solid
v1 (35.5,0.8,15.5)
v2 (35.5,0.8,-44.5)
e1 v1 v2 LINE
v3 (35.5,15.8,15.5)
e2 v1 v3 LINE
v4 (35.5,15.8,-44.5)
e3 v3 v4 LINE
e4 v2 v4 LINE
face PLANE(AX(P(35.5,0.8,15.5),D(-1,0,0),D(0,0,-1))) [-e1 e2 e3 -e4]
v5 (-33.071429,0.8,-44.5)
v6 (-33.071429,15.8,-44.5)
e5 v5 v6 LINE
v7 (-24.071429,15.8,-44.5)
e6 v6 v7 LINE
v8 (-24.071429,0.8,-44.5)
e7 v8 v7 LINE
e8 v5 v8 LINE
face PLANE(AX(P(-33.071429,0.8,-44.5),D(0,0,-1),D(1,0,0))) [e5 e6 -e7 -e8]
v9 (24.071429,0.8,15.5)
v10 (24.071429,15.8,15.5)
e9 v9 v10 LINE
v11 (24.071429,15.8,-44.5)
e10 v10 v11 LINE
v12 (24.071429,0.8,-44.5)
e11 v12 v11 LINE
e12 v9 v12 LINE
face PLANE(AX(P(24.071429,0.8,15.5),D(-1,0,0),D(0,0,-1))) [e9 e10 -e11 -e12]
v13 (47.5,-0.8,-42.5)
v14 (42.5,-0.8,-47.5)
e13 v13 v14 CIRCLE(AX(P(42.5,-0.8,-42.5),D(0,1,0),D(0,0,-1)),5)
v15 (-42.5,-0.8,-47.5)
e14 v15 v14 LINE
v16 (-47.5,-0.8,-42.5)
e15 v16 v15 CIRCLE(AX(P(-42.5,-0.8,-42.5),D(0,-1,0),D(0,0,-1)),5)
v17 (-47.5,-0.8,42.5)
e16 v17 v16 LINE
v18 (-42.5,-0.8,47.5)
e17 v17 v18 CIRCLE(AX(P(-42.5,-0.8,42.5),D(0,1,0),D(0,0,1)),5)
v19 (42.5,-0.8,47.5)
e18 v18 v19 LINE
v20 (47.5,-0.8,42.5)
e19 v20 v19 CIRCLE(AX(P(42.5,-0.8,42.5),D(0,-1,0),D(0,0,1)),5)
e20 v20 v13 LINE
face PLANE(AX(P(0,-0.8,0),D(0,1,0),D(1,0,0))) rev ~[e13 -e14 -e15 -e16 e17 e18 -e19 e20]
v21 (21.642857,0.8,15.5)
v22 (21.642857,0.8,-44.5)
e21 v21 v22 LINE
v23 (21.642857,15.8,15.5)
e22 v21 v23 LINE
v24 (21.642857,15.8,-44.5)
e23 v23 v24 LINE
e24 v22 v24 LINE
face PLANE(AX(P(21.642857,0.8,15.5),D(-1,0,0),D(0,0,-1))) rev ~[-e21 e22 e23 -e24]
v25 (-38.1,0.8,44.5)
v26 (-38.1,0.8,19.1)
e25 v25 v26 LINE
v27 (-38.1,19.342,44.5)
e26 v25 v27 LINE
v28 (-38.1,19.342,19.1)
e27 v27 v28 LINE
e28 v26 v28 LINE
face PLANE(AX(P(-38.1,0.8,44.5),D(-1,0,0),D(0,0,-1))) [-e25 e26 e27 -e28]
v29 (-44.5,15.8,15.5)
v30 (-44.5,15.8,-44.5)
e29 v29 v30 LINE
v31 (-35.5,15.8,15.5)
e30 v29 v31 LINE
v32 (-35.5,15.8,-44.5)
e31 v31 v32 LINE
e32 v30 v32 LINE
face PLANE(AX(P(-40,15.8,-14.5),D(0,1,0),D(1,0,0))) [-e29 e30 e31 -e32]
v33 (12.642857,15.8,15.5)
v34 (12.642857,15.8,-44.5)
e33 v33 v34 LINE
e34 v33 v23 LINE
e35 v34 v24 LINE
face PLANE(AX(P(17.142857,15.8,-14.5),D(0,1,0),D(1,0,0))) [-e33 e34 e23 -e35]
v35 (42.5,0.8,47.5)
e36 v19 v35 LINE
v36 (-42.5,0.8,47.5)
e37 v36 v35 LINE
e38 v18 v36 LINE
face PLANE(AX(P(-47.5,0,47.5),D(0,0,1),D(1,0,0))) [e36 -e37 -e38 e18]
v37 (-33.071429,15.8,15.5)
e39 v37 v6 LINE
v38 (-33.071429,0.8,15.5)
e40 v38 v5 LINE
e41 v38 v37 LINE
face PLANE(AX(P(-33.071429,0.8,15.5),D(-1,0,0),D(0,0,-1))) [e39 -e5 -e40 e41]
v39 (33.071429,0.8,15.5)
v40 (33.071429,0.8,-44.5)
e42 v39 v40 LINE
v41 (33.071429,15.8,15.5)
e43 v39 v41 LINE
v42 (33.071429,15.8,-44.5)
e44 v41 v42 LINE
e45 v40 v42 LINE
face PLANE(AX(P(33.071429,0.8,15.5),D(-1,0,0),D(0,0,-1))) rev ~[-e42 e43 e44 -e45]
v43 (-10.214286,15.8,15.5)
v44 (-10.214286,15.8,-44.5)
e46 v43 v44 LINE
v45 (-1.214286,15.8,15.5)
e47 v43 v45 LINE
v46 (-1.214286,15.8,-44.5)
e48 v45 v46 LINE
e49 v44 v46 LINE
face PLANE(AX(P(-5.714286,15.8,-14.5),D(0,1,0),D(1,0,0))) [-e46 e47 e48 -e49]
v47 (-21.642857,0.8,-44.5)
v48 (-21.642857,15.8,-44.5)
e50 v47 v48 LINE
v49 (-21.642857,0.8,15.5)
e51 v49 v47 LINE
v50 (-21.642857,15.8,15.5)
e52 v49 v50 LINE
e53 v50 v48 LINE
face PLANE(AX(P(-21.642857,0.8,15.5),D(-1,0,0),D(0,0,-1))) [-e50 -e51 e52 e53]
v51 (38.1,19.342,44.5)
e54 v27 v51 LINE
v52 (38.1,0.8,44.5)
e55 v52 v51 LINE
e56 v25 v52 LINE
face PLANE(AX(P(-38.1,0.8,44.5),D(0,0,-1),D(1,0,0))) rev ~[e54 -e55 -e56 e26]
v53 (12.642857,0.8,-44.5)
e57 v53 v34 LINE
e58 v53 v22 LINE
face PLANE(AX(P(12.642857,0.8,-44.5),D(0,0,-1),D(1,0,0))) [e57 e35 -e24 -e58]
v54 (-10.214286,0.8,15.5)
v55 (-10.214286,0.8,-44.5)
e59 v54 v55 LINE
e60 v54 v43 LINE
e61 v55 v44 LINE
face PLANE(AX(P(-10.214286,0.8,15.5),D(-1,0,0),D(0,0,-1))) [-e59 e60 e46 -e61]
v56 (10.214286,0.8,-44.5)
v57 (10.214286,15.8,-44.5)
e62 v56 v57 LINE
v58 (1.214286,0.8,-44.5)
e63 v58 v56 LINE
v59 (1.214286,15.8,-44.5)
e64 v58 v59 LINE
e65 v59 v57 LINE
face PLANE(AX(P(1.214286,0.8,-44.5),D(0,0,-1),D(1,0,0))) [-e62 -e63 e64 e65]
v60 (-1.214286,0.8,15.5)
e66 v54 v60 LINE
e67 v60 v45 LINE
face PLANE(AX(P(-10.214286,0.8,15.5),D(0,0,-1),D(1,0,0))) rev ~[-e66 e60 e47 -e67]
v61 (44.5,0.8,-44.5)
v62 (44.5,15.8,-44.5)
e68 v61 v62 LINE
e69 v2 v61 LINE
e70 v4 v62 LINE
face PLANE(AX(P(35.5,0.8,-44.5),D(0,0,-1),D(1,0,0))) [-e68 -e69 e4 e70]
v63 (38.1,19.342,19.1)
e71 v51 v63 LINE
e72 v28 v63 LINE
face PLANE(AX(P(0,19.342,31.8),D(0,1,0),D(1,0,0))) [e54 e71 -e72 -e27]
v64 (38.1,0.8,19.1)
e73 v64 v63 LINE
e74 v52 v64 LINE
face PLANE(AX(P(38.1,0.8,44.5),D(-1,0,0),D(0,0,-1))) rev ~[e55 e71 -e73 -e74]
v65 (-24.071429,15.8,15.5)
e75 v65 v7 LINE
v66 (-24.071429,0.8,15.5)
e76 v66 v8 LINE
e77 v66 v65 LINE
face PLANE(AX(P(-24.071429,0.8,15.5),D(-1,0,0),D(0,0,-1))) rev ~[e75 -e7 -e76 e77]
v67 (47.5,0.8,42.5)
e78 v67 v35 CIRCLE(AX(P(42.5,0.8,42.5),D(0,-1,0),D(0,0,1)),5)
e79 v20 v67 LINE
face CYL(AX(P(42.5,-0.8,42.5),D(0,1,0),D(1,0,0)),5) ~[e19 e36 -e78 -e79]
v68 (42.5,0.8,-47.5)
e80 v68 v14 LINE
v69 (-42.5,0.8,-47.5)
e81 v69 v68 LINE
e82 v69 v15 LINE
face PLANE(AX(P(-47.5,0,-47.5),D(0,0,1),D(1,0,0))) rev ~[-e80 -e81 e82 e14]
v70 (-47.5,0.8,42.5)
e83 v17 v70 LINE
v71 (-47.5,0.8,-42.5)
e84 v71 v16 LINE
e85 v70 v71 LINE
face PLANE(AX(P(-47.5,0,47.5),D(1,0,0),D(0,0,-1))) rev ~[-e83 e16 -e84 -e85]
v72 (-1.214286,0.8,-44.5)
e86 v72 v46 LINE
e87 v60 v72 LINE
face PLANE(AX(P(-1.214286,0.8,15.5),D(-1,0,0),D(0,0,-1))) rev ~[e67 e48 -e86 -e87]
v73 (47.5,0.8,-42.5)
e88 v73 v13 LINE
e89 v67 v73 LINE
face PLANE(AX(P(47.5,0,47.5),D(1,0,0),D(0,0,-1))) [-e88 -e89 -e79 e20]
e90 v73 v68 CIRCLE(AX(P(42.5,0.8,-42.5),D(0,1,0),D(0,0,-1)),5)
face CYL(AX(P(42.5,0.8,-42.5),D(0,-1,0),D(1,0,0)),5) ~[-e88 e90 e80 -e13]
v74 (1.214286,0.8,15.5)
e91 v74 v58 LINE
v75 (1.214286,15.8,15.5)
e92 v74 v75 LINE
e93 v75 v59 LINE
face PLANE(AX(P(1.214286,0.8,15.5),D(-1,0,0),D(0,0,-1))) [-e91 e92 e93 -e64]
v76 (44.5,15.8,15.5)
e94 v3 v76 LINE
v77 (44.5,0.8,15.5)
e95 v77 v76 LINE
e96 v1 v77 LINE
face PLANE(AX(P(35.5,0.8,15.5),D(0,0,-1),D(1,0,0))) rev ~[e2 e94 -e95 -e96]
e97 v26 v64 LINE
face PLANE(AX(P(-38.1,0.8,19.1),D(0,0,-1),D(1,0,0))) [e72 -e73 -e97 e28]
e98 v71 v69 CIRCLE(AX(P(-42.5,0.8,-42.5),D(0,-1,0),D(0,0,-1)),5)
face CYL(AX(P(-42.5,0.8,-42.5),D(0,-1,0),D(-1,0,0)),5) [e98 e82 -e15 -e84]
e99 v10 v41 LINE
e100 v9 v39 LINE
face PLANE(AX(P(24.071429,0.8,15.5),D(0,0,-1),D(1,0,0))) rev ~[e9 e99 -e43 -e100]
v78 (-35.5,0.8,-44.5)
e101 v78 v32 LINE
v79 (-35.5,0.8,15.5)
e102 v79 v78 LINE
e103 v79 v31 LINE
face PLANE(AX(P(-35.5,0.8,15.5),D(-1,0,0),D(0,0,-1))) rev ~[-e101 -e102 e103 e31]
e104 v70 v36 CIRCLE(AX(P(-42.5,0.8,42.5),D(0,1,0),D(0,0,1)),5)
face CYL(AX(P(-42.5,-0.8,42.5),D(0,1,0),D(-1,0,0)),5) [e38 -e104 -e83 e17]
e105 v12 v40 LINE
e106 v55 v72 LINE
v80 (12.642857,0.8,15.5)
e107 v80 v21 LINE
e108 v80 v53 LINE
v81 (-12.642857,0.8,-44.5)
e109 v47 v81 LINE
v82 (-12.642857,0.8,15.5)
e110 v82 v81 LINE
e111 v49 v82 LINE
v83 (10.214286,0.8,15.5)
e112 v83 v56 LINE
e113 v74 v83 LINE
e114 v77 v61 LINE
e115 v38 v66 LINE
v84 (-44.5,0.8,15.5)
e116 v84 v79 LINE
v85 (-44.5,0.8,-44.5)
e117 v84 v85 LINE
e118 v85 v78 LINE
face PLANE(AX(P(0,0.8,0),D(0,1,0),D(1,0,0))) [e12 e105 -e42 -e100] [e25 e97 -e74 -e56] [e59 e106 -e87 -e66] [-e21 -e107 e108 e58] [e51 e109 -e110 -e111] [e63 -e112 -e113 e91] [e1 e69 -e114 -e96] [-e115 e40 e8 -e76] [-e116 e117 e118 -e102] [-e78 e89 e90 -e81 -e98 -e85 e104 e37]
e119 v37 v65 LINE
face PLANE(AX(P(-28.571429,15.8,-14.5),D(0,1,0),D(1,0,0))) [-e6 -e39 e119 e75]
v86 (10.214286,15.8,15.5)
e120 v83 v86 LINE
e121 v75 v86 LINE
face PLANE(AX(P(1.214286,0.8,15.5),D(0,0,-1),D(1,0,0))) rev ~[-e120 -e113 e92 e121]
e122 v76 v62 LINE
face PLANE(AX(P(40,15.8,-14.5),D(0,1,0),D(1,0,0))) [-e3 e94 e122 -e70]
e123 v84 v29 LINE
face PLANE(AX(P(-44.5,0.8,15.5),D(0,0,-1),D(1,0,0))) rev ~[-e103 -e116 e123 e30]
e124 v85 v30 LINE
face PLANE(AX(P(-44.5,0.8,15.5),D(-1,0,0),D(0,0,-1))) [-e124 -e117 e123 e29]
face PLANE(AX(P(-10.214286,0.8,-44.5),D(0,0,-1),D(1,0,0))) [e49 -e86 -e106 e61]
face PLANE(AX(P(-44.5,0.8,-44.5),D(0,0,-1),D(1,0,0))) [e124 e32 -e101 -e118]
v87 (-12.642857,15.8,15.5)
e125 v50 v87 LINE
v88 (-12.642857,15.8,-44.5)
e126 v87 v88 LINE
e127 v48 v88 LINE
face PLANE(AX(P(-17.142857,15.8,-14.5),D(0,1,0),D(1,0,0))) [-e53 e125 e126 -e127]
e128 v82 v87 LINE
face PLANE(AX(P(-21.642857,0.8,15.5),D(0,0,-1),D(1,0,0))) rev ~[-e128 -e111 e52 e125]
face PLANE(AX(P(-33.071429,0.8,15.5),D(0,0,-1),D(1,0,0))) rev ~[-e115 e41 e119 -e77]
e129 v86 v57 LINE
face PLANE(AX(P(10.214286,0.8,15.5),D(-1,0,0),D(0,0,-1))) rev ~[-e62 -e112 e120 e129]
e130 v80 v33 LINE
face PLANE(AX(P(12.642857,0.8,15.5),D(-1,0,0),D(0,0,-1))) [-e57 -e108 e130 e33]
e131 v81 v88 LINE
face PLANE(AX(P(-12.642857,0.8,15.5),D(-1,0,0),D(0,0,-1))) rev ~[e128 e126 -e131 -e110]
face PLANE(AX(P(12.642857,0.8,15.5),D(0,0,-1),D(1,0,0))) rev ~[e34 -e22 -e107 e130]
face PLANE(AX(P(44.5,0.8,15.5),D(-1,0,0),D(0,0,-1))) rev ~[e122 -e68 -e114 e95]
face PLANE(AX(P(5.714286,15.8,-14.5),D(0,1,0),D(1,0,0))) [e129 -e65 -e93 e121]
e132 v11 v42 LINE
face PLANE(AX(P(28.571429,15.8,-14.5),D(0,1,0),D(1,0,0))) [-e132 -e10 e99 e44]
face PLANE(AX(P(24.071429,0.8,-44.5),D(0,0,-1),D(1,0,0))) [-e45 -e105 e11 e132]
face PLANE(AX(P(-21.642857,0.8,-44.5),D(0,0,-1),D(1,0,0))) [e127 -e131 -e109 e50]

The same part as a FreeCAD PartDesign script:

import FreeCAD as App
import Part
import Sketcher
from FreeCAD import Vector
Q = App.Units.Quantity


def edges_at(feature, points):
    """Names of the edges that pass closest to the given points."""
    edges = feature.Shape.Edges
    near = lambda p: min(range(len(edges)), key=lambda i: edges[i].distToShape(Part.Vertex(*p))[0])
    return sorted({f"Edge{near(p) + 1}" for p in points})

doc = App.newDocument("Part")
params = doc.addObject("Spreadsheet::Sheet", "Params")
for row, (alias, value) in enumerate([
    ("sketch1_width", "95 mm"),
    ("pad1_length", "1.6 mm"),
    ("fillet_radius", "5 mm"),
    ("sketch2_width", "76.2 mm"),
    ("sketch2_height", "25.4 mm"),
    ("pad2_length", "18.542 mm"),
    ("sketch3_width", "9 mm"),
    ("sketch3_height", "60 mm"),
    ("pad3_length", "15 mm"),
], start=1):
    params.set(f"A{row}", alias)
    params.set(f"B{row}", "=" + value)
    params.setAlias(f"B{row}", alias)

body = doc.addObject("PartDesign::Body", "Body")

# Sketch on XZ plane
sketch1 = doc.addObject("Sketcher::SketchObject", "Sketch")
body.addObject(sketch1)
sketch1.AttachmentSupport = (doc.XZ_Plane, [""])
sketch1.MapMode = "FlatFace"
sketch1.addGeometry(Part.LineSegment(Vector(-48, -48, 0), Vector(-48, 48, 0)), False)
sketch1.addGeometry(Part.LineSegment(Vector(-48, 48, 0), Vector(48, 48, 0)), False)
sketch1.addGeometry(Part.LineSegment(Vector(48, 48, 0), Vector(48, -48, 0)), False)
sketch1.addGeometry(Part.LineSegment(Vector(48, -48, 0), Vector(-48, -48, 0)), False)
sketch1.addConstraint(Sketcher.Constraint("Coincident", 0, 2, 1, 1))
sketch1.addConstraint(Sketcher.Constraint("Coincident", 1, 2, 2, 1))
sketch1.addConstraint(Sketcher.Constraint("Coincident", 2, 2, 3, 1))
sketch1.addConstraint(Sketcher.Constraint("Coincident", 3, 2, 0, 1))
sketch1.addConstraint(Sketcher.Constraint("Vertical", 0))
sketch1.addConstraint(Sketcher.Constraint("Horizontal", 1))
sketch1.addConstraint(Sketcher.Constraint("Vertical", 2))
sketch1.addConstraint(Sketcher.Constraint("Horizontal", 3))
sketch1.addConstraint(Sketcher.Constraint("Symmetric", 0, 2, 2, 2, -1, 1))
sketch1.addConstraint(Sketcher.Constraint("Equal", 3, 0))
sketch1.addConstraint(Sketcher.Constraint("DistanceX", 1, 1, 1, 2, Q("95 mm")))
sketch1.setExpression("Constraints[10]", "Params.sketch1_width")
pad1 = doc.addObject("PartDesign::Pad", "Pad")
body.addObject(pad1)
pad1.Profile = sketch1
pad1.setExpression("Length", "Params.pad1_length")
pad1.Midplane = True
doc.recompute()

fillet = doc.addObject("PartDesign::Fillet", "Fillet")
body.addObject(fillet)
fillet.Base = (pad1, edges_at(pad1, [
    (47.5, 0, 47.5),
    (-47.5, 0, 47.5),
    (-47.5, 0, -47.5),
    (47.5, 0, -47.5),
]))
fillet.setExpression("Radius", "Params.fillet_radius")

# Sketch on XZ plane
sketch2 = doc.addObject("Sketcher::SketchObject", "Sketch001")
body.addObject(sketch2)
sketch2.AttachmentSupport = (doc.XZ_Plane, [""])
sketch2.MapMode = "FlatFace"
sketch2.AttachmentOffset = App.Placement(Vector(0, 0, -0.8), App.Rotation())
sketch2.addGeometry(Part.LineSegment(Vector(-38, 19, 0), Vector(-38, 44, 0)), False)
sketch2.addGeometry(Part.LineSegment(Vector(-38, 44, 0), Vector(38, 44, 0)), False)
sketch2.addGeometry(Part.LineSegment(Vector(38, 44, 0), Vector(38, 19, 0)), False)
sketch2.addGeometry(Part.LineSegment(Vector(38, 19, 0), Vector(-38, 19, 0)), False)
sketch2.addConstraint(Sketcher.Constraint("Coincident", 0, 2, 1, 1))
sketch2.addConstraint(Sketcher.Constraint("Coincident", 1, 2, 2, 1))
sketch2.addConstraint(Sketcher.Constraint("Coincident", 2, 2, 3, 1))
sketch2.addConstraint(Sketcher.Constraint("Coincident", 3, 2, 0, 1))
sketch2.addConstraint(Sketcher.Constraint("Vertical", 0))
sketch2.addConstraint(Sketcher.Constraint("Horizontal", 1))
sketch2.addConstraint(Sketcher.Constraint("Vertical", 2))
sketch2.addConstraint(Sketcher.Constraint("Horizontal", 3))
sketch2.addConstraint(Sketcher.Constraint("DistanceX", 1, 1, 1, 2, Q("76.2 mm")))
sketch2.addConstraint(Sketcher.Constraint("DistanceY", 0, 1, 0, 2, Q("25.4 mm")))
sketch2.addConstraint(Sketcher.Constraint("DistanceX", 0, 2, -1, 1, Q("38.1 mm")))
sketch2.addConstraint(Sketcher.Constraint("DistanceY", -1, 1, 0, 2, Q("44.5 mm")))
sketch2.setExpression("Constraints[8]", "Params.sketch2_width")
sketch2.setExpression("Constraints[9]", "Params.sketch2_height")
pad2 = doc.addObject("PartDesign::Pad", "Pad001")
body.addObject(pad2)
pad2.Profile = sketch2
pad2.setExpression("Length", "Params.pad2_length")
pad2.Reversed = True

# Sketch on XZ plane
sketch3 = doc.addObject("Sketcher::SketchObject", "Sketch002")
body.addObject(sketch3)
sketch3.AttachmentSupport = (doc.XZ_Plane, [""])
sketch3.MapMode = "FlatFace"
sketch3.AttachmentOffset = App.Placement(Vector(0, 0, -0.8), App.Rotation())
sketch3.addGeometry(Part.LineSegment(Vector(-44, -44, 0), Vector(-44, 16, 0)), False)
sketch3.addGeometry(Part.LineSegment(Vector(-44, 16, 0), Vector(-36, 16, 0)), False)
sketch3.addGeometry(Part.LineSegment(Vector(-36, 16, 0), Vector(-36, -44, 0)), False)
sketch3.addGeometry(Part.LineSegment(Vector(-36, -44, 0), Vector(-44, -44, 0)), False)
sketch3.addGeometry(Part.LineSegment(Vector(-33, -44, 0), Vector(-33, 16, 0)), False)
sketch3.addGeometry(Part.LineSegment(Vector(-33, 16, 0), Vector(-24, 16, 0)), False)
sketch3.addGeometry(Part.LineSegment(Vector(-24, 16, 0), Vector(-24, -44, 0)), False)
sketch3.addGeometry(Part.LineSegment(Vector(-24, -44, 0), Vector(-33, -44, 0)), False)
sketch3.addGeometry(Part.LineSegment(Vector(-22, -44, 0), Vector(-22, 16, 0)), False)
sketch3.addGeometry(Part.LineSegment(Vector(-22, 16, 0), Vector(-13, 16, 0)), False)
sketch3.addGeometry(Part.LineSegment(Vector(-13, 16, 0), Vector(-13, -44, 0)), False)
sketch3.addGeometry(Part.LineSegment(Vector(-13, -44, 0), Vector(-22, -44, 0)), False)
sketch3.addGeometry(Part.LineSegment(Vector(-10, -44, 0), Vector(-10, 16, 0)), False)
sketch3.addGeometry(Part.LineSegment(Vector(-10, 16, 0), Vector(-1, 16, 0)), False)
sketch3.addGeometry(Part.LineSegment(Vector(-1, 16, 0), Vector(-1, -44, 0)), False)
sketch3.addGeometry(Part.LineSegment(Vector(-1, -44, 0), Vector(-10, -44, 0)), False)
sketch3.addGeometry(Part.LineSegment(Vector(1, -44, 0), Vector(1, 16, 0)), False)
sketch3.addGeometry(Part.LineSegment(Vector(1, 16, 0), Vector(10, 16, 0)), False)
sketch3.addGeometry(Part.LineSegment(Vector(10, 16, 0), Vector(10, -44, 0)), False)
sketch3.addGeometry(Part.LineSegment(Vector(10, -44, 0), Vector(1, -44, 0)), False)
sketch3.addGeometry(Part.LineSegment(Vector(13, -44, 0), Vector(13, 16, 0)), False)
sketch3.addGeometry(Part.LineSegment(Vector(13, 16, 0), Vector(22, 16, 0)), False)
sketch3.addGeometry(Part.LineSegment(Vector(22, 16, 0), Vector(22, -44, 0)), False)
sketch3.addGeometry(Part.LineSegment(Vector(22, -44, 0), Vector(13, -44, 0)), False)
sketch3.addGeometry(Part.LineSegment(Vector(24, -44, 0), Vector(24, 16, 0)), False)
sketch3.addGeometry(Part.LineSegment(Vector(24, 16, 0), Vector(33, 16, 0)), False)
sketch3.addGeometry(Part.LineSegment(Vector(33, 16, 0), Vector(33, -44, 0)), False)
sketch3.addGeometry(Part.LineSegment(Vector(33, -44, 0), Vector(24, -44, 0)), False)
sketch3.addGeometry(Part.LineSegment(Vector(36, -44, 0), Vector(36, 16, 0)), False)
sketch3.addGeometry(Part.LineSegment(Vector(36, 16, 0), Vector(44, 16, 0)), False)
sketch3.addGeometry(Part.LineSegment(Vector(44, 16, 0), Vector(44, -44, 0)), False)
sketch3.addGeometry(Part.LineSegment(Vector(44, -44, 0), Vector(36, -44, 0)), False)
sketch3.addConstraint(Sketcher.Constraint("Coincident", 0, 2, 1, 1))
sketch3.addConstraint(Sketcher.Constraint("Coincident", 1, 2, 2, 1))
sketch3.addConstraint(Sketcher.Constraint("Coincident", 2, 2, 3, 1))
sketch3.addConstraint(Sketcher.Constraint("Coincident", 3, 2, 0, 1))
sketch3.addConstraint(Sketcher.Constraint("Coincident", 4, 2, 5, 1))
sketch3.addConstraint(Sketcher.Constraint("Coincident", 5, 2, 6, 1))
sketch3.addConstraint(Sketcher.Constraint("Coincident", 6, 2, 7, 1))
sketch3.addConstraint(Sketcher.Constraint("Coincident", 7, 2, 4, 1))
sketch3.addConstraint(Sketcher.Constraint("Coincident", 8, 2, 9, 1))
sketch3.addConstraint(Sketcher.Constraint("Coincident", 9, 2, 10, 1))
sketch3.addConstraint(Sketcher.Constraint("Coincident", 10, 2, 11, 1))
sketch3.addConstraint(Sketcher.Constraint("Coincident", 11, 2, 8, 1))
sketch3.addConstraint(Sketcher.Constraint("Coincident", 12, 2, 13, 1))
sketch3.addConstraint(Sketcher.Constraint("Coincident", 13, 2, 14, 1))
sketch3.addConstraint(Sketcher.Constraint("Coincident", 14, 2, 15, 1))
sketch3.addConstraint(Sketcher.Constraint("Coincident", 15, 2, 12, 1))
sketch3.addConstraint(Sketcher.Constraint("Coincident", 16, 2, 17, 1))
sketch3.addConstraint(Sketcher.Constraint("Coincident", 17, 2, 18, 1))
sketch3.addConstraint(Sketcher.Constraint("Coincident", 18, 2, 19, 1))
sketch3.addConstraint(Sketcher.Constraint("Coincident", 19, 2, 16, 1))
sketch3.addConstraint(Sketcher.Constraint("Coincident", 20, 2, 21, 1))
sketch3.addConstraint(Sketcher.Constraint("Coincident", 21, 2, 22, 1))
sketch3.addConstraint(Sketcher.Constraint("Coincident", 22, 2, 23, 1))
sketch3.addConstraint(Sketcher.Constraint("Coincident", 23, 2, 20, 1))
sketch3.addConstraint(Sketcher.Constraint("Coincident", 24, 2, 25, 1))
sketch3.addConstraint(Sketcher.Constraint("Coincident", 25, 2, 26, 1))
sketch3.addConstraint(Sketcher.Constraint("Coincident", 26, 2, 27, 1))
sketch3.addConstraint(Sketcher.Constraint("Coincident", 27, 2, 24, 1))
sketch3.addConstraint(Sketcher.Constraint("Coincident", 28, 2, 29, 1))
sketch3.addConstraint(Sketcher.Constraint("Coincident", 29, 2, 30, 1))
sketch3.addConstraint(Sketcher.Constraint("Coincident", 30, 2, 31, 1))
sketch3.addConstraint(Sketcher.Constraint("Coincident", 31, 2, 28, 1))
sketch3.addConstraint(Sketcher.Constraint("Vertical", 0))
sketch3.addConstraint(Sketcher.Constraint("Horizontal", 1))
sketch3.addConstraint(Sketcher.Constraint("Vertical", 2))
sketch3.addConstraint(Sketcher.Constraint("Horizontal", 3))
sketch3.addConstraint(Sketcher.Constraint("Vertical", 4))
sketch3.addConstraint(Sketcher.Constraint("Horizontal", 5))
sketch3.addConstraint(Sketcher.Constraint("Vertical", 6))
sketch3.addConstraint(Sketcher.Constraint("Horizontal", 7))
sketch3.addConstraint(Sketcher.Constraint("Vertical", 8))
sketch3.addConstraint(Sketcher.Constraint("Horizontal", 9))
sketch3.addConstraint(Sketcher.Constraint("Vertical", 10))
sketch3.addConstraint(Sketcher.Constraint("Horizontal", 11))
sketch3.addConstraint(Sketcher.Constraint("Vertical", 12))
sketch3.addConstraint(Sketcher.Constraint("Horizontal", 13))
sketch3.addConstraint(Sketcher.Constraint("Vertical", 14))
sketch3.addConstraint(Sketcher.Constraint("Horizontal", 15))
sketch3.addConstraint(Sketcher.Constraint("Vertical", 16))
sketch3.addConstraint(Sketcher.Constraint("Horizontal", 17))
sketch3.addConstraint(Sketcher.Constraint("Vertical", 18))
sketch3.addConstraint(Sketcher.Constraint("Horizontal", 19))
sketch3.addConstraint(Sketcher.Constraint("Vertical", 20))
sketch3.addConstraint(Sketcher.Constraint("Horizontal", 21))
sketch3.addConstraint(Sketcher.Constraint("Vertical", 22))
sketch3.addConstraint(Sketcher.Constraint("Horizontal", 23))
sketch3.addConstraint(Sketcher.Constraint("Vertical", 24))
sketch3.addConstraint(Sketcher.Constraint("Horizontal", 25))
sketch3.addConstraint(Sketcher.Constraint("Vertical", 26))
sketch3.addConstraint(Sketcher.Constraint("Horizontal", 27))
sketch3.addConstraint(Sketcher.Constraint("Vertical", 28))
sketch3.addConstraint(Sketcher.Constraint("Horizontal", 29))
sketch3.addConstraint(Sketcher.Constraint("Vertical", 30))
sketch3.addConstraint(Sketcher.Constraint("Horizontal", 31))
sketch3.addConstraint(Sketcher.Constraint("Symmetric", 13, 2, 16, 2, -2))
sketch3.addConstraint(Sketcher.Constraint("Symmetric", 15, 2, 18, 2, -2))
sketch3.addConstraint(Sketcher.Constraint("Symmetric", 9, 2, 20, 2, -2))
sketch3.addConstraint(Sketcher.Constraint("Symmetric", 11, 2, 22, 2, -2))
sketch3.addConstraint(Sketcher.Constraint("Symmetric", 5, 2, 24, 2, -2))
sketch3.addConstraint(Sketcher.Constraint("Symmetric", 7, 2, 26, 2, -2))
sketch3.addConstraint(Sketcher.Constraint("Symmetric", 1, 2, 28, 2, -2))
sketch3.addConstraint(Sketcher.Constraint("Symmetric", 3, 2, 30, 2, -2))
sketch3.addConstraint(Sketcher.Constraint("Horizontal", 1, 2, 4, 2))
sketch3.addConstraint(Sketcher.Constraint("Horizontal", 3, 2, 6, 2))
sketch3.addConstraint(Sketcher.Constraint("Horizontal", 5, 2, 8, 2))
sketch3.addConstraint(Sketcher.Constraint("Horizontal", 7, 2, 10, 2))
sketch3.addConstraint(Sketcher.Constraint("Horizontal", 9, 2, 12, 2))
sketch3.addConstraint(Sketcher.Constraint("Horizontal", 11, 2, 14, 2))
sketch3.addConstraint(Sketcher.Constraint("Equal", 3, 5))
sketch3.addConstraint(Sketcher.Constraint("Equal", 7, 9))
sketch3.addConstraint(Sketcher.Constraint("Equal", 11, 13))
sketch3.addConstraint(Sketcher.Constraint("DistanceX", 1, 1, 1, 2, Q("9 mm")))
sketch3.addConstraint(Sketcher.Constraint("DistanceY", 0, 1, 0, 2, Q("60 mm")))
sketch3.addConstraint(Sketcher.Constraint("DistanceX", 0, 2, -1, 1, Q("44.5 mm")))
sketch3.addConstraint(Sketcher.Constraint("DistanceY", -1, 1, 0, 2, Q("15.5 mm")))
sketch3.addConstraint(Sketcher.Constraint("DistanceX", 4, 2, -1, 1, Q("33.071429 mm")))
sketch3.addConstraint(Sketcher.Constraint("DistanceX", 5, 2, 8, 2, Q("2.428571 mm")))
sketch3.addConstraint(Sketcher.Constraint("DistanceX", 9, 2, 12, 2, Q("2.428571 mm")))
sketch3.setExpression("Constraints[81]", "Params.sketch3_width")
sketch3.setExpression("Constraints[82]", "Params.sketch3_height")
pad3 = doc.addObject("PartDesign::Pad", "Pad002")
body.addObject(pad3)
pad3.Profile = sketch3
pad3.setExpression("Length", "Params.pad3_length")
pad3.Reversed = True

doc.recompute()
